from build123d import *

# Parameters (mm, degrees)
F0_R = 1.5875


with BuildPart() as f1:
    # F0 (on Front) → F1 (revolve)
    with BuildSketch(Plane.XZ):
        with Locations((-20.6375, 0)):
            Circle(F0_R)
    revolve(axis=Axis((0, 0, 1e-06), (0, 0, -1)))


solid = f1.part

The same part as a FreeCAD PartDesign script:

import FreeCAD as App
import Part
import Sketcher
Q = App.Units.Quantity

doc = App.newDocument("Part")
body = doc.addObject("PartDesign::Body", "Body")

sketch1 = body.newObject("Sketcher::SketchObject", "Sketch")
sketch1.AttachmentSupport = (doc.getObject("XZ_Plane"), [""])
sketch1.MapMode = "FlatFace"
sketch1.addGeometry(Part.Circle(App.Vector(-20.6375, 0, 0), App.Vector(0, 0, 1), 1.5875), False)
sketch1.addConstraint(Sketcher.Constraint("PointOnObject", 0, 3, -1))
sketch1.addConstraint(Sketcher.Constraint("Diameter", 0, Q("0.125 in")))
sketch1.addConstraint(Sketcher.Constraint("DistanceX", 0, 3, -1, 1, Q("0.8125 in")))
revolution = body.newObject("PartDesign::Revolution", "Revolution")
revolution.Profile = sketch1
revolution.ReferenceAxis = (sketch1, ["V_Axis"])
revolution.Angle = 360

doc.recompute()
